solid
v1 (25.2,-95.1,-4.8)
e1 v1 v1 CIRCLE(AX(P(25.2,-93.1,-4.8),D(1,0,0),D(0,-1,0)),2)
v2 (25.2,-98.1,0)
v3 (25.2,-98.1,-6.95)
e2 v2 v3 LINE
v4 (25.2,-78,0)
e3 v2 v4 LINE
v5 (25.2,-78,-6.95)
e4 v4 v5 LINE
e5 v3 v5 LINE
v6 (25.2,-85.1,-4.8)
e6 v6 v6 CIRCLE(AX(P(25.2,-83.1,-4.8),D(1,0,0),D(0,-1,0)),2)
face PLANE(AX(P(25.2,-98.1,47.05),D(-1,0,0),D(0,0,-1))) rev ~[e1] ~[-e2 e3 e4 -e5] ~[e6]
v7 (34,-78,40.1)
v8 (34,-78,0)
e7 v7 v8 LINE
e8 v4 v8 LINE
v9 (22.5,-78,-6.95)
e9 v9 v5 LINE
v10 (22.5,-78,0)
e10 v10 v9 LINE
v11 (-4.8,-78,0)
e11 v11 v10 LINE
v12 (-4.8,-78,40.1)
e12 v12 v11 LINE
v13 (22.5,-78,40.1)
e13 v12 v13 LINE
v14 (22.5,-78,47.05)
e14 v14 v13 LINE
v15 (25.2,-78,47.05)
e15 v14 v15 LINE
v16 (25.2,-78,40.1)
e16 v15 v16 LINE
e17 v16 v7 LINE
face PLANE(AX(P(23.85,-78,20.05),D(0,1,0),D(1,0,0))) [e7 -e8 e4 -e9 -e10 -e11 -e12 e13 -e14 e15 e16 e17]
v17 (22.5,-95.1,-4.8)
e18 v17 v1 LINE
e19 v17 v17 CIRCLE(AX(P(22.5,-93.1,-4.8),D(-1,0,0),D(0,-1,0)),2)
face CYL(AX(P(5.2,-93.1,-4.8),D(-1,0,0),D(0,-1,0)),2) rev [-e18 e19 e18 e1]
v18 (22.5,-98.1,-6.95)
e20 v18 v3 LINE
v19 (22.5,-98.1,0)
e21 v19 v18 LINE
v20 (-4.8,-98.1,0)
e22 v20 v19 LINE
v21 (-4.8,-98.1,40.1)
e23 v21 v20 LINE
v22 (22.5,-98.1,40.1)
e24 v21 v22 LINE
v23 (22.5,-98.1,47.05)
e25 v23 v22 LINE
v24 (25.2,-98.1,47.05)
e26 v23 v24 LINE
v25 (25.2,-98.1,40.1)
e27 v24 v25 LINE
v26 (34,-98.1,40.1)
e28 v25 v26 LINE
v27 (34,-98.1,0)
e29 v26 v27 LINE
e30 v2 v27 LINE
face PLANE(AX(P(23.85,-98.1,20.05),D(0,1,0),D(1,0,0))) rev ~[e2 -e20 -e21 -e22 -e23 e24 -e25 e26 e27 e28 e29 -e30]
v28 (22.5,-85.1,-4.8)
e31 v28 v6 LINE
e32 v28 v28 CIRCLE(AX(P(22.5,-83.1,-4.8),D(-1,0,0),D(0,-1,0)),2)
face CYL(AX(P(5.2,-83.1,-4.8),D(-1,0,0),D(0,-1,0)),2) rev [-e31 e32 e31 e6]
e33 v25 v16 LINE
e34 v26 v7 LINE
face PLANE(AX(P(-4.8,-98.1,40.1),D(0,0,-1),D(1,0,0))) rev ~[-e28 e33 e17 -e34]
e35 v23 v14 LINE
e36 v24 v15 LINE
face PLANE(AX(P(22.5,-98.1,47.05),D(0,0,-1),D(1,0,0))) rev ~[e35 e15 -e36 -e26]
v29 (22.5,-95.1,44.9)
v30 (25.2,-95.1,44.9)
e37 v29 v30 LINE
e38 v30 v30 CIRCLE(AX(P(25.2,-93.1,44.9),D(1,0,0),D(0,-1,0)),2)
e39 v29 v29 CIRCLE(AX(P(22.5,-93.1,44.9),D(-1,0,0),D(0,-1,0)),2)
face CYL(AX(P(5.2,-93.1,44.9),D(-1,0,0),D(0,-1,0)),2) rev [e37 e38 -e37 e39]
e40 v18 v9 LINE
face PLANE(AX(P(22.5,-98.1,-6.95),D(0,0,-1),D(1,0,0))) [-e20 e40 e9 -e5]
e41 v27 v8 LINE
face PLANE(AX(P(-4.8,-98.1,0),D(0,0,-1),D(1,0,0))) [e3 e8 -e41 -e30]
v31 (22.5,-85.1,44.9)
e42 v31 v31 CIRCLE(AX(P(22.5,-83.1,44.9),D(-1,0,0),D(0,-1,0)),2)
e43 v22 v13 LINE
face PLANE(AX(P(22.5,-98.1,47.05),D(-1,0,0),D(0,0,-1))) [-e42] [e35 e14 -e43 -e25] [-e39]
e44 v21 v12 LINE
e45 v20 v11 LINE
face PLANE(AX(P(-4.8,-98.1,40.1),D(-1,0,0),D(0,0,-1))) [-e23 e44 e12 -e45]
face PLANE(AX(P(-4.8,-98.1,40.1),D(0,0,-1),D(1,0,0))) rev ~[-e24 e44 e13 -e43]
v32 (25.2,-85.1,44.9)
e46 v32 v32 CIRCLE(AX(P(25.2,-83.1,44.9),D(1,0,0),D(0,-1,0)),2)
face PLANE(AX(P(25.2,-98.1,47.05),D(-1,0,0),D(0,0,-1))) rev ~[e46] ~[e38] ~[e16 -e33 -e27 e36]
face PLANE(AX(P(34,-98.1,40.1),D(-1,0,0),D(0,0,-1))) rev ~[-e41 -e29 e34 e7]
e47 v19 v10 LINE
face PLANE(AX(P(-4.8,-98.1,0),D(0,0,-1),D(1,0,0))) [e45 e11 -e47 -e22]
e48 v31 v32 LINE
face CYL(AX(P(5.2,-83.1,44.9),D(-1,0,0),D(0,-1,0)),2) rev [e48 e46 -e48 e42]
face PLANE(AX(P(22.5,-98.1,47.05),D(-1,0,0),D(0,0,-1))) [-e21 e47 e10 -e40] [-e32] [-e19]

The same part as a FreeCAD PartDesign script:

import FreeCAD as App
import Part
import Sketcher
from FreeCAD import Vector

doc = App.newDocument("Part")
params = doc.addObject("Spreadsheet::Sheet", "Params")
for row, (alias, value) in enumerate([
    ("sketch1_diameter", "4 mm"),
    ("pad1_length", "20 mm"),
    ("sketch2_diameter", "4 mm"),
    ("pad2_length", "20 mm"),
    ("sketch3_diameter", "4 mm"),
    ("pad3_length", "20 mm"),
    ("sketch4_diameter", "4 mm"),
    ("pad4_length", "20 mm"),
    ("sketch5_height", "54 mm"),
    ("sketch5_width", "2.7 mm"),
    ("pad5_length", "20.1 mm"),
    ("sketch6_width", "38.8 mm"),
    ("sketch6_height", "40.1 mm"),
    ("pad6_length", "20.1 mm"),
], start=1):
    params.set(f"A{row}", alias)
    params.set(f"B{row}", "=" + value)
    params.setAlias(f"B{row}", alias)

body = doc.addObject("PartDesign::Body", "Body")

# Sketch on YZ plane
sketch1 = body.newObject("Sketcher::SketchObject", "Sketch")
sketch1.AttachmentSupport = (doc.getObject("YZ_Plane"), [""])
sketch1.MapMode = "FlatFace"
sketch1.AttachmentOffset = App.Placement(Vector(0, 0, 9.4), App.Rotation())
sketch1.addGeometry(Part.Circle(Vector(-71.8, 5, 0), Vector(0, 0, 1), 2), False)
sketch1.addConstraint(Sketcher.Constraint("Diameter", 0, 4.0))
sketch1.addConstraint(Sketcher.Constraint("DistanceY", -1, 1, 0, 3, 5.0))
sketch1.addConstraint(Sketcher.Constraint("DistanceX", 0, 3, -1, 1, 71.8))
sketch1.setExpression("Constraints[0]", "Params.sketch1_diameter")
pad1 = body.newObject("PartDesign::Pad", "Pad")
pad1.Profile = sketch1
pad1.setExpression("Length", "Params.pad1_length")
body2 = doc.addObject("PartDesign::Body", "Body001")

# Sketch on YZ plane
sketch2 = body2.newObject("Sketcher::SketchObject", "Sketch001")
sketch2.AttachmentSupport = (doc.getObject("YZ_Plane001"), [""])
sketch2.MapMode = "FlatFace"
sketch2.AttachmentOffset = App.Placement(Vector(0, 0, 9.4), App.Rotation())
sketch2.addGeometry(Part.Circle(Vector(-71.8, 15, 0), Vector(0, 0, 1), 2), False)
sketch2.addConstraint(Sketcher.Constraint("Diameter", 0, 4.0))
sketch2.addConstraint(Sketcher.Constraint("DistanceY", -1, 1, 0, 3, 15.0))
sketch2.addConstraint(Sketcher.Constraint("DistanceX", 0, 3, -1, 1, 71.8))
sketch2.setExpression("Constraints[0]", "Params.sketch2_diameter")
pad2 = body2.newObject("PartDesign::Pad", "Pad001")
pad2.Profile = sketch2
pad2.setExpression("Length", "Params.pad2_length")
body3 = doc.addObject("PartDesign::Body", "Body002")

# Sketch on YZ plane
sketch3 = body3.newObject("Sketcher::SketchObject", "Sketch002")
sketch3.AttachmentSupport = (doc.getObject("YZ_Plane002"), [""])
sketch3.MapMode = "FlatFace"
sketch3.AttachmentOffset = App.Placement(Vector(0, 0, 9.4), App.Rotation())
sketch3.addGeometry(Part.Circle(Vector(-22.1, 5, 0), Vector(0, 0, 1), 2), False)
sketch3.addConstraint(Sketcher.Constraint("Diameter", 0, 4.0))
sketch3.addConstraint(Sketcher.Constraint("DistanceY", -1, 1, 0, 3, 5.0))
sketch3.addConstraint(Sketcher.Constraint("DistanceX", 0, 3, -1, 1, 22.1))
sketch3.setExpression("Constraints[0]", "Params.sketch3_diameter")
pad3 = body3.newObject("PartDesign::Pad", "Pad002")
pad3.Profile = sketch3
pad3.setExpression("Length", "Params.pad3_length")
body4 = doc.addObject("PartDesign::Body", "Body003")

# Sketch on YZ plane
sketch4 = body4.newObject("Sketcher::SketchObject", "Sketch003")
sketch4.AttachmentSupport = (doc.getObject("YZ_Plane003"), [""])
sketch4.MapMode = "FlatFace"
sketch4.AttachmentOffset = App.Placement(Vector(0, 0, 9.4), App.Rotation())
sketch4.addGeometry(Part.Circle(Vector(-22.1, 15, 0), Vector(0, 0, 1), 2), False)
sketch4.addConstraint(Sketcher.Constraint("Diameter", 0, 4.0))
sketch4.addConstraint(Sketcher.Constraint("DistanceY", -1, 1, 0, 3, 15.0))
sketch4.addConstraint(Sketcher.Constraint("DistanceX", 0, 3, -1, 1, 22.1))
sketch4.setExpression("Constraints[0]", "Params.sketch4_diameter")
pad4 = body4.newObject("PartDesign::Pad", "Pad003")
pad4.Profile = sketch4
pad4.setExpression("Length", "Params.pad4_length")
body5 = doc.addObject("PartDesign::Body", "Body004")

# Sketch on XY plane
sketch5 = body5.newObject("Sketcher::SketchObject", "Sketch004")
sketch5.AttachmentSupport = (doc.getObject("XY_Plane004"), [""])
sketch5.MapMode = "FlatFace"
sketch5.addGeometry(Part.LineSegment(Vector(109.3, -46, 0), Vector(109.3, -100, 0)), False)
sketch5.addGeometry(Part.LineSegment(Vector(109.3, -100, 0), Vector(112, -100, 0)), False)
sketch5.addGeometry(Part.LineSegment(Vector(112, -100, 0), Vector(112, -46, 0)), False)
sketch5.addGeometry(Part.LineSegment(Vector(112, -46, 0), Vector(109.3, -46, 0)), False)
sketch5.addConstraint(Sketcher.Constraint("Coincident", 0, 2, 1, 1))
sketch5.addConstraint(Sketcher.Constraint("Coincident", 1, 2, 2, 1))
sketch5.addConstraint(Sketcher.Constraint("Coincident", 2, 2, 3, 1))
sketch5.addConstraint(Sketcher.Constraint("Coincident", 3, 2, 0, 1))
sketch5.addConstraint(Sketcher.Constraint("Vertical", 0))
sketch5.addConstraint(Sketcher.Constraint("Horizontal", 1))
sketch5.addConstraint(Sketcher.Constraint("Vertical", 2))
sketch5.addConstraint(Sketcher.Constraint("Horizontal", 3))
sketch5.addConstraint(Sketcher.Constraint("DistanceY", 0, 2, 0, 1, 54.0))
sketch5.addConstraint(Sketcher.Constraint("DistanceX", 1, 1, 1, 2, 2.7))
sketch5.addConstraint(Sketcher.Constraint("DistanceX", -1, 1, 1, 2, 112.0))
sketch5.addConstraint(Sketcher.Constraint("DistanceY", 0, 2, -1, 1, 99.95))
sketch5.setExpression("Constraints[8]", "Params.sketch5_height")
sketch5.setExpression("Constraints[9]", "Params.sketch5_width")
pad5 = body5.newObject("PartDesign::Pad", "Pad004")
pad5.Profile = sketch5
pad5.setExpression("Length", "Params.pad5_length")
body6 = doc.addObject("PartDesign::Body", "Body005")

# Sketch on XY plane
sketch6 = body6.newObject("Sketcher::SketchObject", "Sketch005")
sketch6.AttachmentSupport = (doc.getObject("XY_Plane005"), [""])
sketch6.MapMode = "FlatFace"
sketch6.addGeometry(Part.LineSegment(Vector(82, -53, 0), Vector(82, -93, 0)), False)
sketch6.addGeometry(Part.LineSegment(Vector(82, -93, 0), Vector(121, -93, 0)), False)
sketch6.addGeometry(Part.LineSegment(Vector(121, -93, 0), Vector(121, -53, 0)), False)
sketch6.addGeometry(Part.LineSegment(Vector(121, -53, 0), Vector(82, -53, 0)), False)
sketch6.addConstraint(Sketcher.Constraint("Coincident", 0, 2, 1, 1))
sketch6.addConstraint(Sketcher.Constraint("Coincident", 1, 2, 2, 1))
sketch6.addConstraint(Sketcher.Constraint("Coincident", 2, 2, 3, 1))
sketch6.addConstraint(Sketcher.Constraint("Coincident", 3, 2, 0, 1))
sketch6.addConstraint(Sketcher.Constraint("Vertical", 0))
sketch6.addConstraint(Sketcher.Constraint("Horizontal", 1))
sketch6.addConstraint(Sketcher.Constraint("Vertical", 2))
sketch6.addConstraint(Sketcher.Constraint("Horizontal", 3))
sketch6.addConstraint(Sketcher.Constraint("DistanceX", 1, 1, 1, 2, 38.8))
sketch6.addConstraint(Sketcher.Constraint("DistanceY", 0, 2, 0, 1, 40.1))
sketch6.addConstraint(Sketcher.Constraint("DistanceX", -1, 1, 0, 2, 82.0))
sketch6.addConstraint(Sketcher.Constraint("DistanceY", 0, 2, -1, 1, 93.0))
sketch6.setExpression("Constraints[8]", "Params.sketch6_width")
sketch6.setExpression("Constraints[9]", "Params.sketch6_height")
pad6 = body6.newObject("PartDesign::Pad", "Pad005")
pad6.Profile = sketch6
pad6.setExpression("Length", "Params.pad6_length")
doc.recompute()

boolean = body6.newObject("PartDesign::Boolean", "Boolean")
boolean.Type = "Fuse"
boolean.addObjects([body5])
body7 = doc.addObject("PartDesign::Body", "Body006")
doc.recompute()

body6.Placement = App.Placement(Vector(-82.6, 26, 0), App.Rotation(Vector(0, 0, 1), 0))
boolean2 = body7.newObject("PartDesign::Boolean", "Boolean001")
boolean2.Type = "Fuse"
boolean2.addObjects([body6])
doc.recompute()

boolean3 = body7.newObject("PartDesign::Boolean", "Boolean002")
boolean3.Type = "Cut"
boolean3.addObjects([body4])
doc.recompute()

boolean4 = body7.newObject("PartDesign::Boolean", "Boolean003")
boolean4.Type = "Cut"
boolean4.addObjects([body3])
doc.recompute()

boolean5 = body7.newObject("PartDesign::Boolean", "Boolean004")
boolean5.Type = "Cut"
boolean5.addObjects([body2])
doc.recompute()

boolean6 = body7.newObject("PartDesign::Boolean", "Boolean005")
boolean6.Type = "Cut"
boolean6.addObjects([body])
body8 = doc.addObject("PartDesign::Body", "Body007")
doc.recompute()

body7.Placement = App.Placement(Vector(-4.2, -98.1, -26.9), App.Rotation(Vector(-1, 0, 0), 90))
boolean7 = body8.newObject("PartDesign::Boolean", "Boolean006")
boolean7.Type = "Fuse"
boolean7.addObjects([body7])

doc.recompute()
